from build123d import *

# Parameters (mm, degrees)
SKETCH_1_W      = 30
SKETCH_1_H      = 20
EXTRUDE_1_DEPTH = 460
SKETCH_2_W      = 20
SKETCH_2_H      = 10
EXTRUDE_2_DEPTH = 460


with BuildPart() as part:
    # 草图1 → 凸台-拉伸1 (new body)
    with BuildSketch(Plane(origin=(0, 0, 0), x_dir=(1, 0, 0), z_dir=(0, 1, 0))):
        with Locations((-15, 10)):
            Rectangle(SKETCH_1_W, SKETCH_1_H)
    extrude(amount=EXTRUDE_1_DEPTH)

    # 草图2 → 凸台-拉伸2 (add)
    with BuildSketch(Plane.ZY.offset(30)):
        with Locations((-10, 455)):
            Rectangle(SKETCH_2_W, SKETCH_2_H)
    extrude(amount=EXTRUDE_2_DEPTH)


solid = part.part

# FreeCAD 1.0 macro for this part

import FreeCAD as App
import Part
import Sketcher
Q = App.Units.Quantity


def add_polygon(sketch, points):
    """Adds a closed chain of lines whose ends are joined by coincident constraints."""
    first, n = sketch.GeometryCount, len(points)
    for a, b in zip(points, points[1:] + points[:1]):
        sketch.addGeometry(Part.LineSegment(App.Vector(*a, 0), App.Vector(*b, 0)), False)
    for i in range(n):
        sketch.addConstraint(Sketcher.Constraint("Coincident", first + i, 2, first + (i + 1) % n, 1))

doc = App.newDocument("Part")
body = doc.addObject("PartDesign::Body", "Body")

# Sketch on XZ plane
sketch1 = doc.addObject("Sketcher::SketchObject", "Sketch")
body.addObject(sketch1)
sketch1.AttachmentSupport = (doc.XZ_Plane, [""])
sketch1.MapMode = "FlatFace"
add_polygon(sketch1, [(-30, -20), (-30, 0), (0, 0), (0, -20)])  # lines 0-3
sketch1.addConstraint([
    Sketcher.Constraint("Vertical", 0),
    Sketcher.Constraint("Horizontal", 1),
    Sketcher.Constraint("Vertical", 2),
    Sketcher.Constraint("Horizontal", 3),
    Sketcher.Constraint("Coincident", 1, 2, -1, 1),
    Sketcher.Constraint("DistanceX", 1, 1, 1, 2, Q("30 mm")),
    Sketcher.Constraint("DistanceY", 0, 1, 0, 2, Q("20 mm")),
])
pad1 = doc.addObject("PartDesign::Pad", "Pad")
body.addObject(pad1)
pad1.Profile = sketch1
pad1.Length = 460
pad1.Reversed = True

# Sketch on YZ plane
sketch2 = doc.addObject("Sketcher::SketchObject", "Sketch001")
body.addObject(sketch2)
sketch2.AttachmentSupport = (doc.YZ_Plane, [""])
sketch2.MapMode = "FlatFace"
sketch2.AttachmentOffset = App.Placement(App.Vector(0, 0, -30), App.Rotation())
add_polygon(sketch2, [(460, -20), (450, -20), (450, 0), (460, 0)])  # lines 0-3
sketch2.addConstraint([
    Sketcher.Constraint("Horizontal", 0),
    Sketcher.Constraint("Vertical", 1),
    Sketcher.Constraint("Horizontal", 2),
    Sketcher.Constraint("Vertical", 3),
    Sketcher.Constraint("PointOnObject", 1, 2, -1),
    Sketcher.Constraint("DistanceX", 0, 2, 0, 1, Q("10 mm")),
    Sketcher.Constraint("DistanceY", 1, 1, 1, 2, Q("20 mm")),
    Sketcher.Constraint("DistanceX", -1, 1, 0, 2, Q("450 mm")),
])
pad2 = doc.addObject("PartDesign::Pad", "Pad001")
body.addObject(pad2)
pad2.Profile = sketch2
pad2.Length = 460
pad2.Reversed = True

doc.recompute()
